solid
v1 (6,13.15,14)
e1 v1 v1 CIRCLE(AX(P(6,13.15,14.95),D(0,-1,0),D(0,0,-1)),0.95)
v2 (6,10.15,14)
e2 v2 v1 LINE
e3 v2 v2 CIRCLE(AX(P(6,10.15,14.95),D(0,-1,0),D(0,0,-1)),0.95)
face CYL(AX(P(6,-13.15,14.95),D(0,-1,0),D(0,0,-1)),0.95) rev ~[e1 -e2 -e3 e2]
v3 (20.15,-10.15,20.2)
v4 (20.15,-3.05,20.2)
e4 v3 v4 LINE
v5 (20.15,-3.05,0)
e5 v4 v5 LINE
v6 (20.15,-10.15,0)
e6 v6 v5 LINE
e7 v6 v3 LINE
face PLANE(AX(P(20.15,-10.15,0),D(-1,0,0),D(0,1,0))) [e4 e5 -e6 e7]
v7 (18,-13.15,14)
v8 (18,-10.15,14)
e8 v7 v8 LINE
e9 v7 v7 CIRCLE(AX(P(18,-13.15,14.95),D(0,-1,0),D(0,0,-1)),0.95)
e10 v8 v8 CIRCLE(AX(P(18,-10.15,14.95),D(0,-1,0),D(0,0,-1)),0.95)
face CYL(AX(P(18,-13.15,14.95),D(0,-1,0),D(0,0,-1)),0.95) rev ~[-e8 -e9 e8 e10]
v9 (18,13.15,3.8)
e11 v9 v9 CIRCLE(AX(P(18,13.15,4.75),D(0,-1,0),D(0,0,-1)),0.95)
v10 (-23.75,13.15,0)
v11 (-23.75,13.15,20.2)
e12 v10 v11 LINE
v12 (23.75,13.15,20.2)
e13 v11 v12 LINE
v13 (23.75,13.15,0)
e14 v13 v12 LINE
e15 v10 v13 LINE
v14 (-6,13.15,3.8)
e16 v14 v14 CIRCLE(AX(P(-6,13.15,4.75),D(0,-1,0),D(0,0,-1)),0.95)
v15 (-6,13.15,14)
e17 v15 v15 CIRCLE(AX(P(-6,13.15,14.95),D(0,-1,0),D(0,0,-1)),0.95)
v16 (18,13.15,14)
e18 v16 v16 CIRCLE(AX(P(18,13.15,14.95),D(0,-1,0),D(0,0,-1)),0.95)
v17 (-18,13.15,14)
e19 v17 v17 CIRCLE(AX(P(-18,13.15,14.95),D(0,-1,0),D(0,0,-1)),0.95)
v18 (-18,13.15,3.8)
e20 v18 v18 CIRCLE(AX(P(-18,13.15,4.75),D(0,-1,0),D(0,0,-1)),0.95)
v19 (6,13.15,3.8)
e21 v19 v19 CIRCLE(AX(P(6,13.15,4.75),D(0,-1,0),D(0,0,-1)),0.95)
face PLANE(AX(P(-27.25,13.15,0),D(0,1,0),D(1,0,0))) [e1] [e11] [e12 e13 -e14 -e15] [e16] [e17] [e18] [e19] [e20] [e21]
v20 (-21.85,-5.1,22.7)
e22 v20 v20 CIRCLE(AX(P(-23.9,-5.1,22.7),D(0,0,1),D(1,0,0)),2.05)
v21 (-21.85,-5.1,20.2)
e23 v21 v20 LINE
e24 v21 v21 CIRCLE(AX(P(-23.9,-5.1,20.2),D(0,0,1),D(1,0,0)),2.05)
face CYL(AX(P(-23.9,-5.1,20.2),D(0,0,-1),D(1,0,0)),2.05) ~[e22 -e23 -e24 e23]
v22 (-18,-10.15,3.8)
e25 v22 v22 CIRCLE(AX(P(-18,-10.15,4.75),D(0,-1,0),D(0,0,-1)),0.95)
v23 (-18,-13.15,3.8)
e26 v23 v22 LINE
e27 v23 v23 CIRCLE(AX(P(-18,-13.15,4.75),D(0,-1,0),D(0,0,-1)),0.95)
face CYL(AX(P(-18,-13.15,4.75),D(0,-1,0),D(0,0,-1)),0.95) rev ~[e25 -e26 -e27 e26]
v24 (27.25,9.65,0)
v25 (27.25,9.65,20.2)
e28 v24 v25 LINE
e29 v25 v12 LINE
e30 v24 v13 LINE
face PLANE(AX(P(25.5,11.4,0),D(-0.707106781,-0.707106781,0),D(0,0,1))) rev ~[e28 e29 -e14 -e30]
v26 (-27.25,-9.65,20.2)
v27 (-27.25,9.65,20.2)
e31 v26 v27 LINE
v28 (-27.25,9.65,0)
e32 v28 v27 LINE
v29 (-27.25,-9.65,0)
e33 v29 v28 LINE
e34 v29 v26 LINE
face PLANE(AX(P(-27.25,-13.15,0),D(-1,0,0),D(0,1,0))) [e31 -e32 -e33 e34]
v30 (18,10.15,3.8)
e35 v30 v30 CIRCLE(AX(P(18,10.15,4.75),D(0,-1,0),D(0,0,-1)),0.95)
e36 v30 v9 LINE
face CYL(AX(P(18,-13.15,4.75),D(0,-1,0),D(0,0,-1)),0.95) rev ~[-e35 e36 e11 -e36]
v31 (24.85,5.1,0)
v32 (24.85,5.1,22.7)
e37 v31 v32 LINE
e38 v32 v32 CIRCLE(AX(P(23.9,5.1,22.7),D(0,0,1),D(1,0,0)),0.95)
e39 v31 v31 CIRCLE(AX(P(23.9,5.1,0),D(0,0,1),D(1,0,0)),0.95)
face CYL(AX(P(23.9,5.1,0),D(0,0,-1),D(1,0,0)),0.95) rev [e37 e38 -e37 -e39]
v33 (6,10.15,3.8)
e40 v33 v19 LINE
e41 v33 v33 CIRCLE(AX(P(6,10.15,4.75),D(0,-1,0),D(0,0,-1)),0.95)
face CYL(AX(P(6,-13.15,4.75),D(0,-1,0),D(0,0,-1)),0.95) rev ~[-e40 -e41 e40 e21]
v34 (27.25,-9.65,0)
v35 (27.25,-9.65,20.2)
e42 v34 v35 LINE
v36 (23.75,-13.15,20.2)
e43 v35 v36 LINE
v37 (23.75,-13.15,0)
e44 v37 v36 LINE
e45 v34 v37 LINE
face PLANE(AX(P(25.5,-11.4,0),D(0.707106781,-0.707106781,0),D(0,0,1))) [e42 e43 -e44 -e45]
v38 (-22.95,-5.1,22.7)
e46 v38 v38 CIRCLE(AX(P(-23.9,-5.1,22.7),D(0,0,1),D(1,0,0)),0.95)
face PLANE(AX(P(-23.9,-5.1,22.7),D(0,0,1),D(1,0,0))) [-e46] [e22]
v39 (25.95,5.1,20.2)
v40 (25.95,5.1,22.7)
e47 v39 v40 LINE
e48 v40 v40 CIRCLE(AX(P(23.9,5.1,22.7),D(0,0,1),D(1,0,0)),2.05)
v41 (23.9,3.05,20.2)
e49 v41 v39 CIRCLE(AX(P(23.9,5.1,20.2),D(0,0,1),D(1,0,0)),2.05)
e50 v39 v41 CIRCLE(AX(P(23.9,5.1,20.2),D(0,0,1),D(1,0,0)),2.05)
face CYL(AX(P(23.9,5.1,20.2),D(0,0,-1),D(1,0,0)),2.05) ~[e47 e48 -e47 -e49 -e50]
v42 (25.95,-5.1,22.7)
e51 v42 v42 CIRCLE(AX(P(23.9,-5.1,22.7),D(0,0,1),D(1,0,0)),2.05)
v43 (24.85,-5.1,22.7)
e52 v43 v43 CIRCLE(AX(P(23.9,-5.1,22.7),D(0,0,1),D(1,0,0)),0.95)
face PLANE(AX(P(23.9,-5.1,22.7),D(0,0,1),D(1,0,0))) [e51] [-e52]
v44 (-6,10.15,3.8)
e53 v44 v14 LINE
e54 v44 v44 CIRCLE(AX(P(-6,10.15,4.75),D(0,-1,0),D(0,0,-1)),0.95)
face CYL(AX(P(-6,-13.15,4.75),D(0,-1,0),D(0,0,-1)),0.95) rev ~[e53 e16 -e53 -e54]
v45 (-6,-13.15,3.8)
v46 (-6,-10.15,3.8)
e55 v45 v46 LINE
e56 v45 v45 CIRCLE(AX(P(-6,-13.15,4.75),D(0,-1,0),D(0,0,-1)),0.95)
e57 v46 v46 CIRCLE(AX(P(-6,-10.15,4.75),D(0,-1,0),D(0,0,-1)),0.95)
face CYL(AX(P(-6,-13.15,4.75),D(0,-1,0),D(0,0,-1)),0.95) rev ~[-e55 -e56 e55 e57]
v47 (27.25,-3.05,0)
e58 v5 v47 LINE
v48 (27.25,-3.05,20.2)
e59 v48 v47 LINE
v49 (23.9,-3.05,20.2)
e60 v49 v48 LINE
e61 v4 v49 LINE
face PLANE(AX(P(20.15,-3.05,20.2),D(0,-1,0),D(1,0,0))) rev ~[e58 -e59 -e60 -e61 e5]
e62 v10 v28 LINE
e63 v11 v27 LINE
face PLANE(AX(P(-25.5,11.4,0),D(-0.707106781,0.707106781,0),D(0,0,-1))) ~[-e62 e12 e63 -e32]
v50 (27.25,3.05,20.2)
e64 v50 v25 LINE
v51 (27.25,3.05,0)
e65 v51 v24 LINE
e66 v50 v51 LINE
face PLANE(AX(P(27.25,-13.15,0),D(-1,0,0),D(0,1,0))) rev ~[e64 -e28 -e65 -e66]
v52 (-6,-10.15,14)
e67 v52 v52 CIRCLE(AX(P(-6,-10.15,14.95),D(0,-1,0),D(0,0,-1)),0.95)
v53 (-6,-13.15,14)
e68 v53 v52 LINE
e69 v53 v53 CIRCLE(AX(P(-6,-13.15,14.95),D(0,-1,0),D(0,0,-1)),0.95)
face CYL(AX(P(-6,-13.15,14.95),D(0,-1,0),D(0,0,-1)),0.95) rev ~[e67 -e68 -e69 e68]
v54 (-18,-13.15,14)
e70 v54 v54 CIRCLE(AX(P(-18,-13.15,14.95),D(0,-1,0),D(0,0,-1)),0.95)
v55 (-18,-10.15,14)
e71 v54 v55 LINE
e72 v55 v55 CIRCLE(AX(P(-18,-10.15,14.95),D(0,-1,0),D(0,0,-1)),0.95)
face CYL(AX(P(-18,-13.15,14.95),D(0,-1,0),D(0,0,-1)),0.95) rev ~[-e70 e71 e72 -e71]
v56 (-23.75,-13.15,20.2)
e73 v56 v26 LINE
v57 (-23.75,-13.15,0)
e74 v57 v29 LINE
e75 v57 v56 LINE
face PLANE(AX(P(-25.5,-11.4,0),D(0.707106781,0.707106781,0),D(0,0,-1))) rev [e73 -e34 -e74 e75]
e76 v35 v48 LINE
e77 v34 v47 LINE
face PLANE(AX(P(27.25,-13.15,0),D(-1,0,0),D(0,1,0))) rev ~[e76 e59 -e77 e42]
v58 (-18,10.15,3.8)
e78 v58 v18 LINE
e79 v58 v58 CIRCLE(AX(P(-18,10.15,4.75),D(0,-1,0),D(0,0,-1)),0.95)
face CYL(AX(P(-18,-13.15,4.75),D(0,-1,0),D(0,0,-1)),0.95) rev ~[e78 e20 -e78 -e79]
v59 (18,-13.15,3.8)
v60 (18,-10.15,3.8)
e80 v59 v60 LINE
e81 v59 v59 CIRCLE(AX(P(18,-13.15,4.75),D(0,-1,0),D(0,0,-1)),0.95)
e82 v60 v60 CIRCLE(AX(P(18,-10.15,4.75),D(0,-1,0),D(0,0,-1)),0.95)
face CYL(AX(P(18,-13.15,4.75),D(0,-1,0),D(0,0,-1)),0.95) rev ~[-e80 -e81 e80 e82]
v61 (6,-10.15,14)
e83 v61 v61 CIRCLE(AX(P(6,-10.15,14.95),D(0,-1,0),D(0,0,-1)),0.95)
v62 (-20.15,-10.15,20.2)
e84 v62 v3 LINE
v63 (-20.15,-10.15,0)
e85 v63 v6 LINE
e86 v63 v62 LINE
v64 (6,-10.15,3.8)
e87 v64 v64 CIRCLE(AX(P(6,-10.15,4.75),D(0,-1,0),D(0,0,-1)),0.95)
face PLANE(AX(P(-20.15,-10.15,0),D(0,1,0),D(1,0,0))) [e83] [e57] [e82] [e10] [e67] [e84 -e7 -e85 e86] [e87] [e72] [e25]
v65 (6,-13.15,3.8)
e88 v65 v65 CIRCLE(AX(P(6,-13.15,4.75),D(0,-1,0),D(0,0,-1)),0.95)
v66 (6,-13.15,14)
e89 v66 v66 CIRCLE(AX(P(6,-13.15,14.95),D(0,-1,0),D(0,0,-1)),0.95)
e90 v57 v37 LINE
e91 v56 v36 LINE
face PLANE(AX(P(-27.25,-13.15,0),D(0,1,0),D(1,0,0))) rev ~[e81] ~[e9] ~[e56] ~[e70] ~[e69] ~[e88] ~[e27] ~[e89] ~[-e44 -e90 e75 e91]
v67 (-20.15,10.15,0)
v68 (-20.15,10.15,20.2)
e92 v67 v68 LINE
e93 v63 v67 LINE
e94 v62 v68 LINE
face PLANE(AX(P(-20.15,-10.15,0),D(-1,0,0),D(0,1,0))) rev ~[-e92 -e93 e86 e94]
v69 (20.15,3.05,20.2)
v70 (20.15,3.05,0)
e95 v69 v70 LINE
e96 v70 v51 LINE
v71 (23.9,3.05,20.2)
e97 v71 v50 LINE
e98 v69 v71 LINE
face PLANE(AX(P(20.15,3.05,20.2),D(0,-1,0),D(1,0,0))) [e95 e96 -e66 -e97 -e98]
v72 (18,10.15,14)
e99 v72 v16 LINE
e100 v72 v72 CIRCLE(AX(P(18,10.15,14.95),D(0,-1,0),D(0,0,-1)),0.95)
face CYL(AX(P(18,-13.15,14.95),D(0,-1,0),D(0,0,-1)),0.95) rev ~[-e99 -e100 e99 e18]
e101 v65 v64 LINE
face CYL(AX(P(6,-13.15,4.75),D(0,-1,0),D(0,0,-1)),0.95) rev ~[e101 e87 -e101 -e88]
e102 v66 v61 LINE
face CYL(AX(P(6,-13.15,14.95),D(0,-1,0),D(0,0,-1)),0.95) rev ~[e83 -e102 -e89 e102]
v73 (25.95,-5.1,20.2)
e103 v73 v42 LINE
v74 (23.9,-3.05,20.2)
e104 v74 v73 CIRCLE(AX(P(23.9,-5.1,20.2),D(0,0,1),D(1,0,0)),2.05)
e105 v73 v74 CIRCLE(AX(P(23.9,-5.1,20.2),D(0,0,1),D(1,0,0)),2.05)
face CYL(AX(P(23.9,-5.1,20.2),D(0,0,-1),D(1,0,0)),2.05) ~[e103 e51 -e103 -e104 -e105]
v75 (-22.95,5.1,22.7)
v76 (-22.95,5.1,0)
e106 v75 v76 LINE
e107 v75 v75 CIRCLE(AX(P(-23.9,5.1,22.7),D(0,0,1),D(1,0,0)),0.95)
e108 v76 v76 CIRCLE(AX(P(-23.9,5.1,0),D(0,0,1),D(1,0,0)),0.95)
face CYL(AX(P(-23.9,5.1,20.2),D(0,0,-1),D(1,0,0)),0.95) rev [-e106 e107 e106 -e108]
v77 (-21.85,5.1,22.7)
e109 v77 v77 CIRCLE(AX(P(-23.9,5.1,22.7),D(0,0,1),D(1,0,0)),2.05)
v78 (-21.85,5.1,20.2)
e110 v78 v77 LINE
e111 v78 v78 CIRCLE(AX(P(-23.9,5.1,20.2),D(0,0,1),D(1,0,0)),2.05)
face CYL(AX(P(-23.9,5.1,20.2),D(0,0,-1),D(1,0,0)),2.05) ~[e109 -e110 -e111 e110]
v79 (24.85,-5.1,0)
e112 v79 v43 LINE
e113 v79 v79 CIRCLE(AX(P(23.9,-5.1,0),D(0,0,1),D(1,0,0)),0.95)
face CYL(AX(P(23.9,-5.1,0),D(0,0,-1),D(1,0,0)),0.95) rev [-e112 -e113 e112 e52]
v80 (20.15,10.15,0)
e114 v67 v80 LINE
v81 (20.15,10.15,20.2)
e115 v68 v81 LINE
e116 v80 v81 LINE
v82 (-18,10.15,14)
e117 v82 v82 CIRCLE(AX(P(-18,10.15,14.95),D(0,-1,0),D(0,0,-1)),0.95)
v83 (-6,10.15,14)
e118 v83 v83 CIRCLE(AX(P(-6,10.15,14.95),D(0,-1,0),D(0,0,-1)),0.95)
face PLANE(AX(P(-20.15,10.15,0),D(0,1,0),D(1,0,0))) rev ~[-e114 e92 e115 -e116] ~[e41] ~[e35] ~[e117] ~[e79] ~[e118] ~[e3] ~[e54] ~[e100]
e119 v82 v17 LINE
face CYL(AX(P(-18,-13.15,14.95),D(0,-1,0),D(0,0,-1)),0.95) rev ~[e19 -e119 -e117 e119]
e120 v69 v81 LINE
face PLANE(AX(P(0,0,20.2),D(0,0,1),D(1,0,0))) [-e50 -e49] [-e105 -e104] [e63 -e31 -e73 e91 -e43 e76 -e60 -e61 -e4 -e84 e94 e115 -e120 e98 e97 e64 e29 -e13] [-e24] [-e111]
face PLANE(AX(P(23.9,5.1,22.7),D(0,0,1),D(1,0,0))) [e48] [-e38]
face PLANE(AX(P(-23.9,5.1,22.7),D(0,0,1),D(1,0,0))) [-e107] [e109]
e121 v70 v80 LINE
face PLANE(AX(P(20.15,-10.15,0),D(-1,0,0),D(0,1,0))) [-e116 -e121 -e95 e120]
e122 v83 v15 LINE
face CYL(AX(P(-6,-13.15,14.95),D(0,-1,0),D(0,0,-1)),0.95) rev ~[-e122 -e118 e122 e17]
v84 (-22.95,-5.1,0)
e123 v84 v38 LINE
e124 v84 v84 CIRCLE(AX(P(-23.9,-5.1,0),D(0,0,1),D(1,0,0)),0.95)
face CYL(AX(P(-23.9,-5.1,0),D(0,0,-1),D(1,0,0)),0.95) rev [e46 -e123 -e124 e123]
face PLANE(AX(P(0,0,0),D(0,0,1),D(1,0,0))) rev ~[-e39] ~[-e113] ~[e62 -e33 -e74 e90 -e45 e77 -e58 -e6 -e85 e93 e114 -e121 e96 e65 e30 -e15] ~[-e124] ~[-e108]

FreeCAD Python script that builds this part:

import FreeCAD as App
import Part
import Sketcher
from FreeCAD import Vector
Q = App.Units.Quantity


def edges_at(feature, points):
    """Names of the edges that pass closest to the given points."""
    edges = feature.Shape.Edges
    near = lambda p: min(range(len(edges)), key=lambda i: edges[i].distToShape(Part.Vertex(*p))[0])
    return sorted({f"Edge{near(p) + 1}" for p in points})


def add_polygon(sketch, points):
    """Adds a closed chain of lines whose ends are joined by coincident constraints."""
    first, n = sketch.GeometryCount, len(points)
    for a, b in zip(points, points[1:] + points[:1]):
        sketch.addGeometry(Part.LineSegment(App.Vector(*a, 0), App.Vector(*b, 0)), False)
    for i in range(n):
        sketch.addConstraint(Sketcher.Constraint("Coincident", first + i, 2, first + (i + 1) % n, 1))

doc = App.newDocument("Part")
body = doc.addObject("PartDesign::Body", "Body")

sketch1 = body.newObject("Sketcher::SketchObject", "Sketch")
sketch1.AttachmentSupport = (doc.getObject("XY_Plane"), [""])
sketch1.MapMode = "FlatFace"
add_polygon(sketch1, [(-27.2, 13.2), (-27.2, -13.2), (27.2, -13.2), (27.2, 13.2)])
sketch1.addGeometry(Part.Circle(Vector(-23.9, -5.1, 0), Vector(0, 0, 1), 0.9), False)
sketch1.addGeometry(Part.Circle(Vector(23.9, -5.1, 0), Vector(0, 0, 1), 0.9), False)
add_polygon(sketch1, [(20.1, -10.2), (-20.1, -10.2), (-20.1, 10.2), (20.1, 10.2)])
sketch1.addGeometry(Part.Circle(Vector(-23.9, 5.1, 0), Vector(0, 0, 1), 0.9), False)
sketch1.addGeometry(Part.Circle(Vector(23.9, 5.1, 0), Vector(0, 0, 1), 0.9), False)
sketch1.addConstraint([
    Sketcher.Constraint("Vertical", 0),
    Sketcher.Constraint("Horizontal", 1),
    Sketcher.Constraint("Vertical", 2),
    Sketcher.Constraint("Horizontal", 3),
    Sketcher.Constraint("Horizontal", 6),
    Sketcher.Constraint("Vertical", 7),
    Sketcher.Constraint("Horizontal", 8),
    Sketcher.Constraint("Vertical", 9),
    Sketcher.Constraint("Equal", 4, 5),
    Sketcher.Constraint("Equal", 5, 10),
    Sketcher.Constraint("Equal", 10, 11),
    Sketcher.Constraint("Symmetric", 5, 3, 10, 3, -1, 1),
    Sketcher.Constraint("Symmetric", 4, 3, 11, 3, -1, 1),
    Sketcher.Constraint("Symmetric", 0, 2, 2, 2, -1, 1),
    Sketcher.Constraint("Symmetric", 6, 2, 8, 2, -1, 1),
    Sketcher.Constraint("Symmetric", 4, 3, 5, 3, -2),
    Sketcher.Constraint("Diameter", 4, Q("1.9 mm")),
    Sketcher.Constraint("DistanceX", 1, 1, 1, 2, Q("54.5 mm")),
    Sketcher.Constraint("DistanceX", 6, 2, 6, 1, Q("40.3 mm")),
    Sketcher.Constraint("DistanceY", 0, 2, 0, 1, Q("26.3 mm")),
    Sketcher.Constraint("DistanceY", 7, 1, 7, 2, Q("20.3 mm")),
    Sketcher.Constraint("DistanceX", 4, 3, -1, 1, Q("23.9 mm")),
    Sketcher.Constraint("DistanceY", 4, 3, -1, 1, Q("5.1 mm")),
])
pad1 = body.newObject("PartDesign::Pad", "Pad")
pad1.Profile = sketch1
pad1.Length = 20.2

sketch2 = body.newObject("Sketcher::SketchObject", "Sketch001")
sketch2.AttachmentSupport = (doc.getObject("XY_Plane"), [""])
sketch2.MapMode = "FlatFace"
sketch2.AttachmentOffset = App.Placement(Vector(0, 0, 20.2), App.Rotation())
sketch2.addGeometry([
    Part.Circle(Vector(-23.9, 5.1, 0), Vector(0, 0, 1), 2),
    Part.Circle(Vector(-23.9, 5.1, 0), Vector(0, 0, 1), 0.9),
    Part.Circle(Vector(-23.9, -5.1, 0), Vector(0, 0, 1), 2),
    Part.Circle(Vector(-23.9, -5.1, 0), Vector(0, 0, 1), 0.9),
    Part.Circle(Vector(23.9, 5.1, 0), Vector(0, 0, 1), 2),
    Part.Circle(Vector(23.9, 5.1, 0), Vector(0, 0, 1), 0.9),
    Part.Circle(Vector(23.9, -5.1, 0), Vector(0, 0, 1), 2),
    Part.Circle(Vector(23.9, -5.1, 0), Vector(0, 0, 1), 0.9),
], False)
sketch2.addConstraint([
    Sketcher.Constraint("Coincident", 1, 3, 0, 3),
    Sketcher.Constraint("Coincident", 3, 3, 2, 3),
    Sketcher.Constraint("Coincident", 5, 3, 4, 3),
    Sketcher.Constraint("Coincident", 7, 3, 6, 3),
    Sketcher.Constraint("Equal", 0, 2),
    Sketcher.Constraint("Equal", 1, 3),
    Sketcher.Constraint("Equal", 2, 4),
    Sketcher.Constraint("Equal", 3, 5),
    Sketcher.Constraint("Equal", 4, 6),
    Sketcher.Constraint("Equal", 5, 7),
    Sketcher.Constraint("Symmetric", 2, 3, 4, 3, -1, 1),
    Sketcher.Constraint("Symmetric", 0, 3, 6, 3, -1, 1),
    Sketcher.Constraint("Symmetric", 0, 3, 4, 3, -2),
    Sketcher.Constraint("Diameter", 0, Q("4.1 mm")),
    Sketcher.Constraint("Diameter", 1, Q("1.9 mm")),
    Sketcher.Constraint("DistanceX", 0, 3, -1, 1, Q("23.9 mm")),
    Sketcher.Constraint("DistanceY", -1, 1, 0, 3, Q("5.1 mm")),
])
pad2 = body.newObject("PartDesign::Pad", "Pad001")
pad2.Profile = sketch2
pad2.Length = 2.5
doc.recompute()

chamfer = body.newObject("PartDesign::Chamfer", "Chamfer")
chamfer.Base = (pad2, edges_at(pad2, [
    (27.25, 13.15, 10.1),
    (27.25, -13.15, 10.1),
    (-27.25, -13.15, 10.1),
    (-27.25, 13.15, 10.1),
]))
chamfer.Size = 3.5

sketch3 = body.newObject("Sketcher::SketchObject", "Sketch002")
sketch3.AttachmentSupport = (doc.getObject("XZ_Plane"), [""])
sketch3.MapMode = "FlatFace"
sketch3.AttachmentOffset = App.Placement(Vector(0, 0, 13.15), App.Rotation())
sketch3.addGeometry([
    Part.Circle(Vector(-6, 14.9, 0), Vector(0, 0, 1), 0.9),
    Part.Circle(Vector(6, 14.9, 0), Vector(0, 0, 1), 0.9),
    Part.Circle(Vector(-18, 14.9, 0), Vector(0, 0, 1), 0.9),
    Part.Circle(Vector(18, 14.9, 0), Vector(0, 0, 1), 0.9),
], False)
sketch3.addConstraint([
    Sketcher.Constraint("Equal", 0, 1),
    Sketcher.Constraint("Equal", 1, 2),
    Sketcher.Constraint("Equal", 2, 3),
    Sketcher.Constraint("Symmetric", 0, 3, 1, 3, -2),
    Sketcher.Constraint("Symmetric", 2, 3, 3, 3, -2),
    Sketcher.Constraint("Horizontal", 1, 3, 2, 3),
    Sketcher.Constraint("Diameter", 0, Q("1.9 mm")),
    Sketcher.Constraint("DistanceX", 0, 3, -1, 1, Q("6 mm")),
    Sketcher.Constraint("DistanceX", 2, 3, -1, 1, Q("18 mm")),
    Sketcher.Constraint("DistanceY", -1, 1, 0, 3, Q("14.95 mm")),
])
pocket1 = body.newObject("PartDesign::Pocket", "Pocket")
pocket1.Profile = sketch3
pocket1.Type = "ThroughAll"

sketch4 = body.newObject("Sketcher::SketchObject", "Sketch003")
sketch4.AttachmentSupport = (doc.getObject("XZ_Plane"), [""])
sketch4.MapMode = "FlatFace"
sketch4.AttachmentOffset = App.Placement(Vector(0, 0, 13.15), App.Rotation())
sketch4.addGeometry([
    Part.Circle(Vector(-6, 4.8, 0), Vector(0, 0, 1), 0.9),
    Part.Circle(Vector(6, 4.8, 0), Vector(0, 0, 1), 0.9),
    Part.Circle(Vector(-18, 4.8, 0), Vector(0, 0, 1), 0.9),
    Part.Circle(Vector(18, 4.8, 0), Vector(0, 0, 1), 0.9),
], False)
sketch4.addConstraint([
    Sketcher.Constraint("Equal", 0, 1),
    Sketcher.Constraint("Equal", 1, 2),
    Sketcher.Constraint("Equal", 2, 3),
    Sketcher.Constraint("Symmetric", 0, 3, 1, 3, -2),
    Sketcher.Constraint("Symmetric", 2, 3, 3, 3, -2),
    Sketcher.Constraint("Horizontal", 1, 3, 2, 3),
    Sketcher.Constraint("Diameter", 0, Q("1.9 mm")),
    Sketcher.Constraint("DistanceX", 0, 3, -1, 1, Q("6 mm")),
    Sketcher.Constraint("DistanceX", 2, 3, -1, 1, Q("18 mm")),
    Sketcher.Constraint("DistanceY", -1, 1, 0, 3, Q("4.75 mm")),
])
pocket2 = body.newObject("PartDesign::Pocket", "Pocket001")
pocket2.Profile = sketch4
pocket2.Type = "ThroughAll"

sketch5 = body.newObject("Sketcher::SketchObject", "Sketch004")
sketch5.AttachmentSupport = (doc.getObject("XY_Plane"), [""])
sketch5.MapMode = "FlatFace"
sketch5.AttachmentOffset = App.Placement(Vector(0, 0, 20.2), App.Rotation())
add_polygon(sketch5, [(20, 3), (20, -3), (27, -3), (27, 3)])
sketch5.addConstraint([
    Sketcher.Constraint("Vertical", 0),
    Sketcher.Constraint("Horizontal", 1),
    Sketcher.Constraint("Vertical", 2),
    Sketcher.Constraint("Horizontal", 3),
    Sketcher.Constraint("DistanceX", 1, 1, 1, 2, Q("7.1 mm")),
    Sketcher.Constraint("DistanceY", 0, 2, 0, 1, Q("6.1 mm")),
    Sketcher.Constraint("DistanceX", -1, 1, 0, 2, Q("20.15 mm")),
    Sketcher.Constraint("DistanceY", 0, 2, -1, 1, Q("3.05 mm")),
])
pocket3 = body.newObject("PartDesign::Pocket", "Pocket002")
pocket3.Profile = sketch5
pocket3.Type = "ThroughAll"

doc.recompute()
